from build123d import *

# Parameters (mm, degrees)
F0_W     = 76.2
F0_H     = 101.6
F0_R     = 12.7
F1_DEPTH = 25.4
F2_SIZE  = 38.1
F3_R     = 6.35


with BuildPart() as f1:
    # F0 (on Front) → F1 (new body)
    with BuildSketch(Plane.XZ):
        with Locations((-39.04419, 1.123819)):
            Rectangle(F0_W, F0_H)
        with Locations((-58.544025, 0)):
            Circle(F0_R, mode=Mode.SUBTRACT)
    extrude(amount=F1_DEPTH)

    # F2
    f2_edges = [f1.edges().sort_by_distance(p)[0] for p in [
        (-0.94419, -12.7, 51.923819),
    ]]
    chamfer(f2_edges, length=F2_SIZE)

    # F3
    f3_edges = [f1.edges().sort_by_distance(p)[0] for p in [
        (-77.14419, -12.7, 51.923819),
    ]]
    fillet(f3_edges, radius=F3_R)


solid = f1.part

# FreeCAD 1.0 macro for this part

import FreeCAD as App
import Part
import Sketcher
from FreeCAD import Vector
Q = App.Units.Quantity


def edges_at(feature, points):
    """Names of the edges that pass closest to the given points."""
    edges = feature.Shape.Edges
    near = lambda p: min(range(len(edges)), key=lambda i: edges[i].distToShape(Part.Vertex(*p))[0])
    return sorted({f"Edge{near(p) + 1}" for p in points})

doc = App.newDocument("Part")
body = doc.addObject("PartDesign::Body", "Body")

# Sketch on XZ plane
sketch1 = body.newObject("Sketcher::SketchObject", "Sketch")
sketch1.AttachmentSupport = (doc.getObject("XZ_Plane"), [""])
sketch1.MapMode = "FlatFace"
sketch1.addGeometry(Part.LineSegment(Vector(-77, 52, 0), Vector(-77, -50, 0)), False)
sketch1.addGeometry(Part.LineSegment(Vector(-77, -50, 0), Vector(-1, -50, 0)), False)
sketch1.addGeometry(Part.LineSegment(Vector(-1, -50, 0), Vector(-1, 52, 0)), False)
sketch1.addGeometry(Part.LineSegment(Vector(-1, 52, 0), Vector(-77, 52, 0)), False)
sketch1.addGeometry(Part.Circle(Vector(-59, 0, 0), Vector(0, 0, 1), 13), False)
sketch1.addConstraint(Sketcher.Constraint("Coincident", 0, 2, 1, 1))
sketch1.addConstraint(Sketcher.Constraint("Coincident", 1, 2, 2, 1))
sketch1.addConstraint(Sketcher.Constraint("Coincident", 2, 2, 3, 1))
sketch1.addConstraint(Sketcher.Constraint("Coincident", 3, 2, 0, 1))
sketch1.addConstraint(Sketcher.Constraint("Vertical", 0))
sketch1.addConstraint(Sketcher.Constraint("Horizontal", 1))
sketch1.addConstraint(Sketcher.Constraint("Vertical", 2))
sketch1.addConstraint(Sketcher.Constraint("Horizontal", 3))
sketch1.addConstraint(Sketcher.Constraint("PointOnObject", 4, 3, -1))
sketch1.addConstraint(Sketcher.Constraint("Diameter", 4, Q("1 in")))
sketch1.addConstraint(Sketcher.Constraint("DistanceX", 1, 1, 1, 2, Q("3 in")))
sketch1.addConstraint(Sketcher.Constraint("DistanceY", 0, 2, 0, 1, Q("4 in")))
sketch1.addConstraint(Sketcher.Constraint("DistanceX", 0, 2, -1, 1, 77.14419))
sketch1.addConstraint(Sketcher.Constraint("DistanceY", 0, 2, -1, 1, 49.676181))
sketch1.addConstraint(Sketcher.Constraint("DistanceX", 4, 3, -1, 1, 58.544025))
pad1 = body.newObject("PartDesign::Pad", "Pad")
pad1.Profile = sketch1
pad1.Length = Q("1 in")
doc.recompute()

chamfer = body.newObject("PartDesign::Chamfer", "Chamfer")
chamfer.Base = (pad1, edges_at(pad1, [(-0.944, -12.7, 51.924)]))
chamfer.Size = Q("1.5 in")
doc.recompute()

fillet = body.newObject("PartDesign::Fillet", "Fillet")
fillet.Base = (chamfer, edges_at(chamfer, [(-77.144, -12.7, 51.924)]))
fillet.Radius = Q("0.25 in")

doc.recompute()
